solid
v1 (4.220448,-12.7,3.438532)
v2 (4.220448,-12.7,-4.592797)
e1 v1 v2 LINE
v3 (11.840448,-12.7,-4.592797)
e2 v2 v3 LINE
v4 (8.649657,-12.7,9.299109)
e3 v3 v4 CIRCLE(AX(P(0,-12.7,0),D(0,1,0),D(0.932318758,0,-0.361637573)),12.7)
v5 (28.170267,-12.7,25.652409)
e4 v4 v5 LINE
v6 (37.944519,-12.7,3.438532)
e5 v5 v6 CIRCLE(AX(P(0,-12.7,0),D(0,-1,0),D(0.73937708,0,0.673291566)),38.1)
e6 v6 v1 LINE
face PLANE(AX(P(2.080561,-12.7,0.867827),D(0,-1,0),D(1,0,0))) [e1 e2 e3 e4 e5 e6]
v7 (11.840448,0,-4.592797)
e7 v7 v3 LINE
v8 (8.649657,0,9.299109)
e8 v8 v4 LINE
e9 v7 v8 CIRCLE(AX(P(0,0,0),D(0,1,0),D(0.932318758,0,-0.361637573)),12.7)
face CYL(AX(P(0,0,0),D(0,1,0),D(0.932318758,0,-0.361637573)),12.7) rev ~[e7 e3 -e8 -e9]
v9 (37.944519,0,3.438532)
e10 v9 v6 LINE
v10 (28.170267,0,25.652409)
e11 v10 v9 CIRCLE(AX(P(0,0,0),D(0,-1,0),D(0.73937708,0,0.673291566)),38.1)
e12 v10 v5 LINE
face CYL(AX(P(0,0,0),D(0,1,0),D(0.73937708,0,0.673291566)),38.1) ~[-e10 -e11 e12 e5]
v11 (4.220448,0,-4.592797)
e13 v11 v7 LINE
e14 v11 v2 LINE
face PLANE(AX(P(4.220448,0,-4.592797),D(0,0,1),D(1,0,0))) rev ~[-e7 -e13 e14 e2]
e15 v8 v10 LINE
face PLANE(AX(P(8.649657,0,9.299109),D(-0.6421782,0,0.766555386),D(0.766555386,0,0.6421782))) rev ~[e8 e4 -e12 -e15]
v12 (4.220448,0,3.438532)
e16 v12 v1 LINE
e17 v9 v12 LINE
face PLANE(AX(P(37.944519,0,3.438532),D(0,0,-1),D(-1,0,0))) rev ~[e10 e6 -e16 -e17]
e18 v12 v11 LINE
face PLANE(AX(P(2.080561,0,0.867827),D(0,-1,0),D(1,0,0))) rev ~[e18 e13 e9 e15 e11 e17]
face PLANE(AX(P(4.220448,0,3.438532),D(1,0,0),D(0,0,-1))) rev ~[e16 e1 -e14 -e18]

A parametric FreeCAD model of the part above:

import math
import FreeCAD as App
import Part
import Sketcher
Q = App.Units.Quantity

doc = App.newDocument("Part")
body = doc.addObject("PartDesign::Body", "Body")

# Sketch on XZ plane
sketch1 = body.newObject("Sketcher::SketchObject", "Sketch")
sketch1.AttachmentSupport = (doc.getObject("XZ_Plane"), [""])
sketch1.MapMode = "FlatFace"
sketch1.addGeometry(Part.LineSegment(App.Vector(9, 9, 0), App.Vector(28, 26, 0)), False)
sketch1.addGeometry(Part.ArcOfCircle(Part.Circle(App.Vector(0, 0, 0), App.Vector(0, 0, 1), 38), math.radians(42), math.radians(365)), False)
sketch1.addGeometry(Part.LineSegment(App.Vector(38, 3, 0), App.Vector(4, 3, 0)), False)
sketch1.addGeometry(Part.LineSegment(App.Vector(4, 3, 0), App.Vector(4, -5, 0)), False)
sketch1.addGeometry(Part.LineSegment(App.Vector(4, -5, 0), App.Vector(12, -5, 0)), False)
sketch1.addGeometry(Part.ArcOfCircle(Part.Circle(App.Vector(0, 0, 0), App.Vector(0, 0, 1), 13), math.radians(47), math.radians(339)), False)
sketch1.addConstraint(Sketcher.Constraint("Coincident", 0, 2, 1, 1))
sketch1.addConstraint(Sketcher.Constraint("Coincident", 1, 2, 2, 1))
sketch1.addConstraint(Sketcher.Constraint("Coincident", 2, 2, 3, 1))
sketch1.addConstraint(Sketcher.Constraint("Coincident", 3, 2, 4, 1))
sketch1.addConstraint(Sketcher.Constraint("Coincident", 4, 2, 5, 2))
sketch1.addConstraint(Sketcher.Constraint("Coincident", 5, 1, 0, 1))
sketch1.addConstraint(Sketcher.Constraint("Horizontal", 2))
sketch1.addConstraint(Sketcher.Constraint("Vertical", 3))
sketch1.addConstraint(Sketcher.Constraint("Horizontal", 4))
sketch1.addConstraint(Sketcher.Constraint("Coincident", 1, 3, -1, 1))
sketch1.addConstraint(Sketcher.Constraint("Coincident", 5, 3, -1, 1))
sketch1.addConstraint(Sketcher.Constraint("Radius", 1, Q("1.5 in")))
sketch1.addConstraint(Sketcher.Constraint("Radius", 5, Q("0.5 in")))
sketch1.addConstraint(Sketcher.Constraint("DistanceX", 4, 1, 4, 2, Q("0.3 in")))
sketch1.addConstraint(Sketcher.Constraint("DistanceX", 2, 2, 2, 1, Q("33.724071 mm")))
sketch1.addConstraint(Sketcher.Constraint("DistanceY", 3, 2, 3, 1, Q("8.031329 mm")))
sketch1.addConstraint(Sketcher.Constraint("Distance", 0, Q("25.465361 mm")))
sketch1.addConstraint(Sketcher.Constraint("DistanceY", -1, 1, 0, 2, Q("25.652409 mm")))
pad1 = body.newObject("PartDesign::Pad", "Pad")
pad1.Profile = sketch1
pad1.Length = Q("0.5 in")

doc.recompute()
